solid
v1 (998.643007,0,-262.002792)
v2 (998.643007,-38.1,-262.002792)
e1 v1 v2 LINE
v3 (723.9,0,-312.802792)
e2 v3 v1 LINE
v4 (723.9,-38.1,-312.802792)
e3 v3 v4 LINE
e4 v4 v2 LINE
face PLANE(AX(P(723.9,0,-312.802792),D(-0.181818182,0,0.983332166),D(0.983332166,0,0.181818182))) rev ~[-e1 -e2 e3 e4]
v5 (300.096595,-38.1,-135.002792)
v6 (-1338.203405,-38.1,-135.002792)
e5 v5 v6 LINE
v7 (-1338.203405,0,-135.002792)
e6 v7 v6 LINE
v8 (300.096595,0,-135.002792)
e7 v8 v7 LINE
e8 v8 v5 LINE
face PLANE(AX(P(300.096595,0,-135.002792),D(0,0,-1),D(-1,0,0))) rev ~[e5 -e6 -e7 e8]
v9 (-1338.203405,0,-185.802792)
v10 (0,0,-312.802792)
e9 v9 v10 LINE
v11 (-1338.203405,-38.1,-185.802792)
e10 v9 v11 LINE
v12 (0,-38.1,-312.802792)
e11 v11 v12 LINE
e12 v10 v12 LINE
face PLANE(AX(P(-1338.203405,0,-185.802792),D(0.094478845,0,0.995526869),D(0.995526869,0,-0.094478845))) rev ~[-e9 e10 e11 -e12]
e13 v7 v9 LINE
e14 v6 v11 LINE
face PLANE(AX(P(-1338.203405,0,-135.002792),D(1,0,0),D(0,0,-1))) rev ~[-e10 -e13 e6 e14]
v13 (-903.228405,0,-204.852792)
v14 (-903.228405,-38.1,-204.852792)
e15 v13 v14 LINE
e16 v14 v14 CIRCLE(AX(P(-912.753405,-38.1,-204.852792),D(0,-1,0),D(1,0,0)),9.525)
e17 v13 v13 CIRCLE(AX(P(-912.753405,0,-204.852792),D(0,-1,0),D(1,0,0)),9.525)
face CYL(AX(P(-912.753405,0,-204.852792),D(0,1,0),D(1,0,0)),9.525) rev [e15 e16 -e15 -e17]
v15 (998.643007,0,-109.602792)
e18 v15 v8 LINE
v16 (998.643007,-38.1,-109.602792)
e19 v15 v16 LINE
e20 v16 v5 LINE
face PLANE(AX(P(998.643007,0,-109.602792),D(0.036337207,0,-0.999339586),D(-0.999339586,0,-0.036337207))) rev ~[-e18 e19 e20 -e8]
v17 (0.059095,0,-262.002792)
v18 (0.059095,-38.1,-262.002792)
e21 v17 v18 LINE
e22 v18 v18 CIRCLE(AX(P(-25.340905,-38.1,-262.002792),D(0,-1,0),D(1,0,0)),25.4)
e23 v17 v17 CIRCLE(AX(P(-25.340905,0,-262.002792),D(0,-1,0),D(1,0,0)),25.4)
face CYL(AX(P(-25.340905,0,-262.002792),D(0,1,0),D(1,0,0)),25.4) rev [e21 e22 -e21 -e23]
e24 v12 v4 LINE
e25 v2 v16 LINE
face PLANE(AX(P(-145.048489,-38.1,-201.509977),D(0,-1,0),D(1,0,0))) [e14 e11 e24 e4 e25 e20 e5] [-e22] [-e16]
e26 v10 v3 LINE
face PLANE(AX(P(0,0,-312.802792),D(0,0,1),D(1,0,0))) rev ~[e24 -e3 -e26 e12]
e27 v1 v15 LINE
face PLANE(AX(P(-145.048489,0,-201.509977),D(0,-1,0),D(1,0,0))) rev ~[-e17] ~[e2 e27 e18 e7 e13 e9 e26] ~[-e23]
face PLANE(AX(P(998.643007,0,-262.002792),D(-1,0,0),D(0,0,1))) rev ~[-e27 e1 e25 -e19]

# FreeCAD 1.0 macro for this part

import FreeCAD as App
import Part
import Sketcher

V = App.Vector
Q = App.Units.Quantity


def add_polygon(sketch, points):
    """Adds a closed chain of lines whose ends are joined by coincident constraints."""
    first, n = sketch.GeometryCount, len(points)
    for a, b in zip(points, points[1:] + points[:1]):
        sketch.addGeometry(Part.LineSegment(App.Vector(*a, 0), App.Vector(*b, 0)), False)
    for i in range(n):
        sketch.addConstraint(Sketcher.Constraint("Coincident", first + i, 2, first + (i + 1) % n, 1))

doc = App.newDocument("Part")
body = doc.addObject("PartDesign::Body", "Body")

# Sketch on XZ plane
sketch1 = body.newObject("Sketcher::SketchObject", "Sketch")
sketch1.AttachmentSupport = (doc.getObject("XZ_Plane"), [""])
sketch1.MapMode = "FlatFace"
add_polygon(sketch1, [(300, -135), (-1338, -135), (-1338, -186), (0, -313), (724, -313), (999, -262), (999, -110)])  # lines 0-6
sketch1.addGeometry(Part.Circle(V(-25, -262, 0), V(0, 0, 1), 25), False)  # 7
sketch1.addGeometry(Part.Circle(V(-913, -205, 0), V(0, 0, 1), 10), False)  # 8
sketch1.addConstraint([
    Sketcher.Constraint("Horizontal", 0),
    Sketcher.Constraint("Vertical", 1),
    Sketcher.Constraint("Horizontal", 3),
    Sketcher.Constraint("Vertical", 5),
    Sketcher.Constraint("PointOnObject", 2, 2, -2),
    Sketcher.Constraint("Horizontal", 7, 3, 4, 2),
    Sketcher.Constraint("Diameter", 7, Q("2 in")),
    Sketcher.Constraint("Diameter", 8, Q("0.75 in")),
    Sketcher.Constraint("DistanceY", 1, 2, 1, 1, Q("2 in")),
    Sketcher.Constraint("DistanceY", 5, 1, 5, 2, Q("6 in")),
    Sketcher.Constraint("Distance", 4, Q("11 in")),
    Sketcher.Constraint("DistanceX", 0, 2, 0, 1, Q("64.5 in")),
    Sketcher.Constraint("DistanceX", 3, 1, 3, 2, Q("28.5 in")),
    Sketcher.Constraint("DistanceY", 7, 3, 0, 2, Q("5 in")),
    Sketcher.Constraint("DistanceY", 2, 2, 7, 3, Q("2 in")),
    Sketcher.Constraint("DistanceY", 7, 3, 8, 3, Q("2.25 in")),
    Sketcher.Constraint("DistanceX", 0, 2, 8, 3, Q("16.75 in")),
    Sketcher.Constraint("DistanceX", 8, 3, 7, 3, Q("34.9375 in")),
    Sketcher.Constraint("Distance", 2, Q("52.9219 in")),
    Sketcher.Constraint("DistanceY", 7, 3, -1, 1, 262.002792),
])
pad1 = body.newObject("PartDesign::Pad", "Pad")
pad1.Profile = sketch1
pad1.Length = Q("1.5 in")

doc.recompute()
